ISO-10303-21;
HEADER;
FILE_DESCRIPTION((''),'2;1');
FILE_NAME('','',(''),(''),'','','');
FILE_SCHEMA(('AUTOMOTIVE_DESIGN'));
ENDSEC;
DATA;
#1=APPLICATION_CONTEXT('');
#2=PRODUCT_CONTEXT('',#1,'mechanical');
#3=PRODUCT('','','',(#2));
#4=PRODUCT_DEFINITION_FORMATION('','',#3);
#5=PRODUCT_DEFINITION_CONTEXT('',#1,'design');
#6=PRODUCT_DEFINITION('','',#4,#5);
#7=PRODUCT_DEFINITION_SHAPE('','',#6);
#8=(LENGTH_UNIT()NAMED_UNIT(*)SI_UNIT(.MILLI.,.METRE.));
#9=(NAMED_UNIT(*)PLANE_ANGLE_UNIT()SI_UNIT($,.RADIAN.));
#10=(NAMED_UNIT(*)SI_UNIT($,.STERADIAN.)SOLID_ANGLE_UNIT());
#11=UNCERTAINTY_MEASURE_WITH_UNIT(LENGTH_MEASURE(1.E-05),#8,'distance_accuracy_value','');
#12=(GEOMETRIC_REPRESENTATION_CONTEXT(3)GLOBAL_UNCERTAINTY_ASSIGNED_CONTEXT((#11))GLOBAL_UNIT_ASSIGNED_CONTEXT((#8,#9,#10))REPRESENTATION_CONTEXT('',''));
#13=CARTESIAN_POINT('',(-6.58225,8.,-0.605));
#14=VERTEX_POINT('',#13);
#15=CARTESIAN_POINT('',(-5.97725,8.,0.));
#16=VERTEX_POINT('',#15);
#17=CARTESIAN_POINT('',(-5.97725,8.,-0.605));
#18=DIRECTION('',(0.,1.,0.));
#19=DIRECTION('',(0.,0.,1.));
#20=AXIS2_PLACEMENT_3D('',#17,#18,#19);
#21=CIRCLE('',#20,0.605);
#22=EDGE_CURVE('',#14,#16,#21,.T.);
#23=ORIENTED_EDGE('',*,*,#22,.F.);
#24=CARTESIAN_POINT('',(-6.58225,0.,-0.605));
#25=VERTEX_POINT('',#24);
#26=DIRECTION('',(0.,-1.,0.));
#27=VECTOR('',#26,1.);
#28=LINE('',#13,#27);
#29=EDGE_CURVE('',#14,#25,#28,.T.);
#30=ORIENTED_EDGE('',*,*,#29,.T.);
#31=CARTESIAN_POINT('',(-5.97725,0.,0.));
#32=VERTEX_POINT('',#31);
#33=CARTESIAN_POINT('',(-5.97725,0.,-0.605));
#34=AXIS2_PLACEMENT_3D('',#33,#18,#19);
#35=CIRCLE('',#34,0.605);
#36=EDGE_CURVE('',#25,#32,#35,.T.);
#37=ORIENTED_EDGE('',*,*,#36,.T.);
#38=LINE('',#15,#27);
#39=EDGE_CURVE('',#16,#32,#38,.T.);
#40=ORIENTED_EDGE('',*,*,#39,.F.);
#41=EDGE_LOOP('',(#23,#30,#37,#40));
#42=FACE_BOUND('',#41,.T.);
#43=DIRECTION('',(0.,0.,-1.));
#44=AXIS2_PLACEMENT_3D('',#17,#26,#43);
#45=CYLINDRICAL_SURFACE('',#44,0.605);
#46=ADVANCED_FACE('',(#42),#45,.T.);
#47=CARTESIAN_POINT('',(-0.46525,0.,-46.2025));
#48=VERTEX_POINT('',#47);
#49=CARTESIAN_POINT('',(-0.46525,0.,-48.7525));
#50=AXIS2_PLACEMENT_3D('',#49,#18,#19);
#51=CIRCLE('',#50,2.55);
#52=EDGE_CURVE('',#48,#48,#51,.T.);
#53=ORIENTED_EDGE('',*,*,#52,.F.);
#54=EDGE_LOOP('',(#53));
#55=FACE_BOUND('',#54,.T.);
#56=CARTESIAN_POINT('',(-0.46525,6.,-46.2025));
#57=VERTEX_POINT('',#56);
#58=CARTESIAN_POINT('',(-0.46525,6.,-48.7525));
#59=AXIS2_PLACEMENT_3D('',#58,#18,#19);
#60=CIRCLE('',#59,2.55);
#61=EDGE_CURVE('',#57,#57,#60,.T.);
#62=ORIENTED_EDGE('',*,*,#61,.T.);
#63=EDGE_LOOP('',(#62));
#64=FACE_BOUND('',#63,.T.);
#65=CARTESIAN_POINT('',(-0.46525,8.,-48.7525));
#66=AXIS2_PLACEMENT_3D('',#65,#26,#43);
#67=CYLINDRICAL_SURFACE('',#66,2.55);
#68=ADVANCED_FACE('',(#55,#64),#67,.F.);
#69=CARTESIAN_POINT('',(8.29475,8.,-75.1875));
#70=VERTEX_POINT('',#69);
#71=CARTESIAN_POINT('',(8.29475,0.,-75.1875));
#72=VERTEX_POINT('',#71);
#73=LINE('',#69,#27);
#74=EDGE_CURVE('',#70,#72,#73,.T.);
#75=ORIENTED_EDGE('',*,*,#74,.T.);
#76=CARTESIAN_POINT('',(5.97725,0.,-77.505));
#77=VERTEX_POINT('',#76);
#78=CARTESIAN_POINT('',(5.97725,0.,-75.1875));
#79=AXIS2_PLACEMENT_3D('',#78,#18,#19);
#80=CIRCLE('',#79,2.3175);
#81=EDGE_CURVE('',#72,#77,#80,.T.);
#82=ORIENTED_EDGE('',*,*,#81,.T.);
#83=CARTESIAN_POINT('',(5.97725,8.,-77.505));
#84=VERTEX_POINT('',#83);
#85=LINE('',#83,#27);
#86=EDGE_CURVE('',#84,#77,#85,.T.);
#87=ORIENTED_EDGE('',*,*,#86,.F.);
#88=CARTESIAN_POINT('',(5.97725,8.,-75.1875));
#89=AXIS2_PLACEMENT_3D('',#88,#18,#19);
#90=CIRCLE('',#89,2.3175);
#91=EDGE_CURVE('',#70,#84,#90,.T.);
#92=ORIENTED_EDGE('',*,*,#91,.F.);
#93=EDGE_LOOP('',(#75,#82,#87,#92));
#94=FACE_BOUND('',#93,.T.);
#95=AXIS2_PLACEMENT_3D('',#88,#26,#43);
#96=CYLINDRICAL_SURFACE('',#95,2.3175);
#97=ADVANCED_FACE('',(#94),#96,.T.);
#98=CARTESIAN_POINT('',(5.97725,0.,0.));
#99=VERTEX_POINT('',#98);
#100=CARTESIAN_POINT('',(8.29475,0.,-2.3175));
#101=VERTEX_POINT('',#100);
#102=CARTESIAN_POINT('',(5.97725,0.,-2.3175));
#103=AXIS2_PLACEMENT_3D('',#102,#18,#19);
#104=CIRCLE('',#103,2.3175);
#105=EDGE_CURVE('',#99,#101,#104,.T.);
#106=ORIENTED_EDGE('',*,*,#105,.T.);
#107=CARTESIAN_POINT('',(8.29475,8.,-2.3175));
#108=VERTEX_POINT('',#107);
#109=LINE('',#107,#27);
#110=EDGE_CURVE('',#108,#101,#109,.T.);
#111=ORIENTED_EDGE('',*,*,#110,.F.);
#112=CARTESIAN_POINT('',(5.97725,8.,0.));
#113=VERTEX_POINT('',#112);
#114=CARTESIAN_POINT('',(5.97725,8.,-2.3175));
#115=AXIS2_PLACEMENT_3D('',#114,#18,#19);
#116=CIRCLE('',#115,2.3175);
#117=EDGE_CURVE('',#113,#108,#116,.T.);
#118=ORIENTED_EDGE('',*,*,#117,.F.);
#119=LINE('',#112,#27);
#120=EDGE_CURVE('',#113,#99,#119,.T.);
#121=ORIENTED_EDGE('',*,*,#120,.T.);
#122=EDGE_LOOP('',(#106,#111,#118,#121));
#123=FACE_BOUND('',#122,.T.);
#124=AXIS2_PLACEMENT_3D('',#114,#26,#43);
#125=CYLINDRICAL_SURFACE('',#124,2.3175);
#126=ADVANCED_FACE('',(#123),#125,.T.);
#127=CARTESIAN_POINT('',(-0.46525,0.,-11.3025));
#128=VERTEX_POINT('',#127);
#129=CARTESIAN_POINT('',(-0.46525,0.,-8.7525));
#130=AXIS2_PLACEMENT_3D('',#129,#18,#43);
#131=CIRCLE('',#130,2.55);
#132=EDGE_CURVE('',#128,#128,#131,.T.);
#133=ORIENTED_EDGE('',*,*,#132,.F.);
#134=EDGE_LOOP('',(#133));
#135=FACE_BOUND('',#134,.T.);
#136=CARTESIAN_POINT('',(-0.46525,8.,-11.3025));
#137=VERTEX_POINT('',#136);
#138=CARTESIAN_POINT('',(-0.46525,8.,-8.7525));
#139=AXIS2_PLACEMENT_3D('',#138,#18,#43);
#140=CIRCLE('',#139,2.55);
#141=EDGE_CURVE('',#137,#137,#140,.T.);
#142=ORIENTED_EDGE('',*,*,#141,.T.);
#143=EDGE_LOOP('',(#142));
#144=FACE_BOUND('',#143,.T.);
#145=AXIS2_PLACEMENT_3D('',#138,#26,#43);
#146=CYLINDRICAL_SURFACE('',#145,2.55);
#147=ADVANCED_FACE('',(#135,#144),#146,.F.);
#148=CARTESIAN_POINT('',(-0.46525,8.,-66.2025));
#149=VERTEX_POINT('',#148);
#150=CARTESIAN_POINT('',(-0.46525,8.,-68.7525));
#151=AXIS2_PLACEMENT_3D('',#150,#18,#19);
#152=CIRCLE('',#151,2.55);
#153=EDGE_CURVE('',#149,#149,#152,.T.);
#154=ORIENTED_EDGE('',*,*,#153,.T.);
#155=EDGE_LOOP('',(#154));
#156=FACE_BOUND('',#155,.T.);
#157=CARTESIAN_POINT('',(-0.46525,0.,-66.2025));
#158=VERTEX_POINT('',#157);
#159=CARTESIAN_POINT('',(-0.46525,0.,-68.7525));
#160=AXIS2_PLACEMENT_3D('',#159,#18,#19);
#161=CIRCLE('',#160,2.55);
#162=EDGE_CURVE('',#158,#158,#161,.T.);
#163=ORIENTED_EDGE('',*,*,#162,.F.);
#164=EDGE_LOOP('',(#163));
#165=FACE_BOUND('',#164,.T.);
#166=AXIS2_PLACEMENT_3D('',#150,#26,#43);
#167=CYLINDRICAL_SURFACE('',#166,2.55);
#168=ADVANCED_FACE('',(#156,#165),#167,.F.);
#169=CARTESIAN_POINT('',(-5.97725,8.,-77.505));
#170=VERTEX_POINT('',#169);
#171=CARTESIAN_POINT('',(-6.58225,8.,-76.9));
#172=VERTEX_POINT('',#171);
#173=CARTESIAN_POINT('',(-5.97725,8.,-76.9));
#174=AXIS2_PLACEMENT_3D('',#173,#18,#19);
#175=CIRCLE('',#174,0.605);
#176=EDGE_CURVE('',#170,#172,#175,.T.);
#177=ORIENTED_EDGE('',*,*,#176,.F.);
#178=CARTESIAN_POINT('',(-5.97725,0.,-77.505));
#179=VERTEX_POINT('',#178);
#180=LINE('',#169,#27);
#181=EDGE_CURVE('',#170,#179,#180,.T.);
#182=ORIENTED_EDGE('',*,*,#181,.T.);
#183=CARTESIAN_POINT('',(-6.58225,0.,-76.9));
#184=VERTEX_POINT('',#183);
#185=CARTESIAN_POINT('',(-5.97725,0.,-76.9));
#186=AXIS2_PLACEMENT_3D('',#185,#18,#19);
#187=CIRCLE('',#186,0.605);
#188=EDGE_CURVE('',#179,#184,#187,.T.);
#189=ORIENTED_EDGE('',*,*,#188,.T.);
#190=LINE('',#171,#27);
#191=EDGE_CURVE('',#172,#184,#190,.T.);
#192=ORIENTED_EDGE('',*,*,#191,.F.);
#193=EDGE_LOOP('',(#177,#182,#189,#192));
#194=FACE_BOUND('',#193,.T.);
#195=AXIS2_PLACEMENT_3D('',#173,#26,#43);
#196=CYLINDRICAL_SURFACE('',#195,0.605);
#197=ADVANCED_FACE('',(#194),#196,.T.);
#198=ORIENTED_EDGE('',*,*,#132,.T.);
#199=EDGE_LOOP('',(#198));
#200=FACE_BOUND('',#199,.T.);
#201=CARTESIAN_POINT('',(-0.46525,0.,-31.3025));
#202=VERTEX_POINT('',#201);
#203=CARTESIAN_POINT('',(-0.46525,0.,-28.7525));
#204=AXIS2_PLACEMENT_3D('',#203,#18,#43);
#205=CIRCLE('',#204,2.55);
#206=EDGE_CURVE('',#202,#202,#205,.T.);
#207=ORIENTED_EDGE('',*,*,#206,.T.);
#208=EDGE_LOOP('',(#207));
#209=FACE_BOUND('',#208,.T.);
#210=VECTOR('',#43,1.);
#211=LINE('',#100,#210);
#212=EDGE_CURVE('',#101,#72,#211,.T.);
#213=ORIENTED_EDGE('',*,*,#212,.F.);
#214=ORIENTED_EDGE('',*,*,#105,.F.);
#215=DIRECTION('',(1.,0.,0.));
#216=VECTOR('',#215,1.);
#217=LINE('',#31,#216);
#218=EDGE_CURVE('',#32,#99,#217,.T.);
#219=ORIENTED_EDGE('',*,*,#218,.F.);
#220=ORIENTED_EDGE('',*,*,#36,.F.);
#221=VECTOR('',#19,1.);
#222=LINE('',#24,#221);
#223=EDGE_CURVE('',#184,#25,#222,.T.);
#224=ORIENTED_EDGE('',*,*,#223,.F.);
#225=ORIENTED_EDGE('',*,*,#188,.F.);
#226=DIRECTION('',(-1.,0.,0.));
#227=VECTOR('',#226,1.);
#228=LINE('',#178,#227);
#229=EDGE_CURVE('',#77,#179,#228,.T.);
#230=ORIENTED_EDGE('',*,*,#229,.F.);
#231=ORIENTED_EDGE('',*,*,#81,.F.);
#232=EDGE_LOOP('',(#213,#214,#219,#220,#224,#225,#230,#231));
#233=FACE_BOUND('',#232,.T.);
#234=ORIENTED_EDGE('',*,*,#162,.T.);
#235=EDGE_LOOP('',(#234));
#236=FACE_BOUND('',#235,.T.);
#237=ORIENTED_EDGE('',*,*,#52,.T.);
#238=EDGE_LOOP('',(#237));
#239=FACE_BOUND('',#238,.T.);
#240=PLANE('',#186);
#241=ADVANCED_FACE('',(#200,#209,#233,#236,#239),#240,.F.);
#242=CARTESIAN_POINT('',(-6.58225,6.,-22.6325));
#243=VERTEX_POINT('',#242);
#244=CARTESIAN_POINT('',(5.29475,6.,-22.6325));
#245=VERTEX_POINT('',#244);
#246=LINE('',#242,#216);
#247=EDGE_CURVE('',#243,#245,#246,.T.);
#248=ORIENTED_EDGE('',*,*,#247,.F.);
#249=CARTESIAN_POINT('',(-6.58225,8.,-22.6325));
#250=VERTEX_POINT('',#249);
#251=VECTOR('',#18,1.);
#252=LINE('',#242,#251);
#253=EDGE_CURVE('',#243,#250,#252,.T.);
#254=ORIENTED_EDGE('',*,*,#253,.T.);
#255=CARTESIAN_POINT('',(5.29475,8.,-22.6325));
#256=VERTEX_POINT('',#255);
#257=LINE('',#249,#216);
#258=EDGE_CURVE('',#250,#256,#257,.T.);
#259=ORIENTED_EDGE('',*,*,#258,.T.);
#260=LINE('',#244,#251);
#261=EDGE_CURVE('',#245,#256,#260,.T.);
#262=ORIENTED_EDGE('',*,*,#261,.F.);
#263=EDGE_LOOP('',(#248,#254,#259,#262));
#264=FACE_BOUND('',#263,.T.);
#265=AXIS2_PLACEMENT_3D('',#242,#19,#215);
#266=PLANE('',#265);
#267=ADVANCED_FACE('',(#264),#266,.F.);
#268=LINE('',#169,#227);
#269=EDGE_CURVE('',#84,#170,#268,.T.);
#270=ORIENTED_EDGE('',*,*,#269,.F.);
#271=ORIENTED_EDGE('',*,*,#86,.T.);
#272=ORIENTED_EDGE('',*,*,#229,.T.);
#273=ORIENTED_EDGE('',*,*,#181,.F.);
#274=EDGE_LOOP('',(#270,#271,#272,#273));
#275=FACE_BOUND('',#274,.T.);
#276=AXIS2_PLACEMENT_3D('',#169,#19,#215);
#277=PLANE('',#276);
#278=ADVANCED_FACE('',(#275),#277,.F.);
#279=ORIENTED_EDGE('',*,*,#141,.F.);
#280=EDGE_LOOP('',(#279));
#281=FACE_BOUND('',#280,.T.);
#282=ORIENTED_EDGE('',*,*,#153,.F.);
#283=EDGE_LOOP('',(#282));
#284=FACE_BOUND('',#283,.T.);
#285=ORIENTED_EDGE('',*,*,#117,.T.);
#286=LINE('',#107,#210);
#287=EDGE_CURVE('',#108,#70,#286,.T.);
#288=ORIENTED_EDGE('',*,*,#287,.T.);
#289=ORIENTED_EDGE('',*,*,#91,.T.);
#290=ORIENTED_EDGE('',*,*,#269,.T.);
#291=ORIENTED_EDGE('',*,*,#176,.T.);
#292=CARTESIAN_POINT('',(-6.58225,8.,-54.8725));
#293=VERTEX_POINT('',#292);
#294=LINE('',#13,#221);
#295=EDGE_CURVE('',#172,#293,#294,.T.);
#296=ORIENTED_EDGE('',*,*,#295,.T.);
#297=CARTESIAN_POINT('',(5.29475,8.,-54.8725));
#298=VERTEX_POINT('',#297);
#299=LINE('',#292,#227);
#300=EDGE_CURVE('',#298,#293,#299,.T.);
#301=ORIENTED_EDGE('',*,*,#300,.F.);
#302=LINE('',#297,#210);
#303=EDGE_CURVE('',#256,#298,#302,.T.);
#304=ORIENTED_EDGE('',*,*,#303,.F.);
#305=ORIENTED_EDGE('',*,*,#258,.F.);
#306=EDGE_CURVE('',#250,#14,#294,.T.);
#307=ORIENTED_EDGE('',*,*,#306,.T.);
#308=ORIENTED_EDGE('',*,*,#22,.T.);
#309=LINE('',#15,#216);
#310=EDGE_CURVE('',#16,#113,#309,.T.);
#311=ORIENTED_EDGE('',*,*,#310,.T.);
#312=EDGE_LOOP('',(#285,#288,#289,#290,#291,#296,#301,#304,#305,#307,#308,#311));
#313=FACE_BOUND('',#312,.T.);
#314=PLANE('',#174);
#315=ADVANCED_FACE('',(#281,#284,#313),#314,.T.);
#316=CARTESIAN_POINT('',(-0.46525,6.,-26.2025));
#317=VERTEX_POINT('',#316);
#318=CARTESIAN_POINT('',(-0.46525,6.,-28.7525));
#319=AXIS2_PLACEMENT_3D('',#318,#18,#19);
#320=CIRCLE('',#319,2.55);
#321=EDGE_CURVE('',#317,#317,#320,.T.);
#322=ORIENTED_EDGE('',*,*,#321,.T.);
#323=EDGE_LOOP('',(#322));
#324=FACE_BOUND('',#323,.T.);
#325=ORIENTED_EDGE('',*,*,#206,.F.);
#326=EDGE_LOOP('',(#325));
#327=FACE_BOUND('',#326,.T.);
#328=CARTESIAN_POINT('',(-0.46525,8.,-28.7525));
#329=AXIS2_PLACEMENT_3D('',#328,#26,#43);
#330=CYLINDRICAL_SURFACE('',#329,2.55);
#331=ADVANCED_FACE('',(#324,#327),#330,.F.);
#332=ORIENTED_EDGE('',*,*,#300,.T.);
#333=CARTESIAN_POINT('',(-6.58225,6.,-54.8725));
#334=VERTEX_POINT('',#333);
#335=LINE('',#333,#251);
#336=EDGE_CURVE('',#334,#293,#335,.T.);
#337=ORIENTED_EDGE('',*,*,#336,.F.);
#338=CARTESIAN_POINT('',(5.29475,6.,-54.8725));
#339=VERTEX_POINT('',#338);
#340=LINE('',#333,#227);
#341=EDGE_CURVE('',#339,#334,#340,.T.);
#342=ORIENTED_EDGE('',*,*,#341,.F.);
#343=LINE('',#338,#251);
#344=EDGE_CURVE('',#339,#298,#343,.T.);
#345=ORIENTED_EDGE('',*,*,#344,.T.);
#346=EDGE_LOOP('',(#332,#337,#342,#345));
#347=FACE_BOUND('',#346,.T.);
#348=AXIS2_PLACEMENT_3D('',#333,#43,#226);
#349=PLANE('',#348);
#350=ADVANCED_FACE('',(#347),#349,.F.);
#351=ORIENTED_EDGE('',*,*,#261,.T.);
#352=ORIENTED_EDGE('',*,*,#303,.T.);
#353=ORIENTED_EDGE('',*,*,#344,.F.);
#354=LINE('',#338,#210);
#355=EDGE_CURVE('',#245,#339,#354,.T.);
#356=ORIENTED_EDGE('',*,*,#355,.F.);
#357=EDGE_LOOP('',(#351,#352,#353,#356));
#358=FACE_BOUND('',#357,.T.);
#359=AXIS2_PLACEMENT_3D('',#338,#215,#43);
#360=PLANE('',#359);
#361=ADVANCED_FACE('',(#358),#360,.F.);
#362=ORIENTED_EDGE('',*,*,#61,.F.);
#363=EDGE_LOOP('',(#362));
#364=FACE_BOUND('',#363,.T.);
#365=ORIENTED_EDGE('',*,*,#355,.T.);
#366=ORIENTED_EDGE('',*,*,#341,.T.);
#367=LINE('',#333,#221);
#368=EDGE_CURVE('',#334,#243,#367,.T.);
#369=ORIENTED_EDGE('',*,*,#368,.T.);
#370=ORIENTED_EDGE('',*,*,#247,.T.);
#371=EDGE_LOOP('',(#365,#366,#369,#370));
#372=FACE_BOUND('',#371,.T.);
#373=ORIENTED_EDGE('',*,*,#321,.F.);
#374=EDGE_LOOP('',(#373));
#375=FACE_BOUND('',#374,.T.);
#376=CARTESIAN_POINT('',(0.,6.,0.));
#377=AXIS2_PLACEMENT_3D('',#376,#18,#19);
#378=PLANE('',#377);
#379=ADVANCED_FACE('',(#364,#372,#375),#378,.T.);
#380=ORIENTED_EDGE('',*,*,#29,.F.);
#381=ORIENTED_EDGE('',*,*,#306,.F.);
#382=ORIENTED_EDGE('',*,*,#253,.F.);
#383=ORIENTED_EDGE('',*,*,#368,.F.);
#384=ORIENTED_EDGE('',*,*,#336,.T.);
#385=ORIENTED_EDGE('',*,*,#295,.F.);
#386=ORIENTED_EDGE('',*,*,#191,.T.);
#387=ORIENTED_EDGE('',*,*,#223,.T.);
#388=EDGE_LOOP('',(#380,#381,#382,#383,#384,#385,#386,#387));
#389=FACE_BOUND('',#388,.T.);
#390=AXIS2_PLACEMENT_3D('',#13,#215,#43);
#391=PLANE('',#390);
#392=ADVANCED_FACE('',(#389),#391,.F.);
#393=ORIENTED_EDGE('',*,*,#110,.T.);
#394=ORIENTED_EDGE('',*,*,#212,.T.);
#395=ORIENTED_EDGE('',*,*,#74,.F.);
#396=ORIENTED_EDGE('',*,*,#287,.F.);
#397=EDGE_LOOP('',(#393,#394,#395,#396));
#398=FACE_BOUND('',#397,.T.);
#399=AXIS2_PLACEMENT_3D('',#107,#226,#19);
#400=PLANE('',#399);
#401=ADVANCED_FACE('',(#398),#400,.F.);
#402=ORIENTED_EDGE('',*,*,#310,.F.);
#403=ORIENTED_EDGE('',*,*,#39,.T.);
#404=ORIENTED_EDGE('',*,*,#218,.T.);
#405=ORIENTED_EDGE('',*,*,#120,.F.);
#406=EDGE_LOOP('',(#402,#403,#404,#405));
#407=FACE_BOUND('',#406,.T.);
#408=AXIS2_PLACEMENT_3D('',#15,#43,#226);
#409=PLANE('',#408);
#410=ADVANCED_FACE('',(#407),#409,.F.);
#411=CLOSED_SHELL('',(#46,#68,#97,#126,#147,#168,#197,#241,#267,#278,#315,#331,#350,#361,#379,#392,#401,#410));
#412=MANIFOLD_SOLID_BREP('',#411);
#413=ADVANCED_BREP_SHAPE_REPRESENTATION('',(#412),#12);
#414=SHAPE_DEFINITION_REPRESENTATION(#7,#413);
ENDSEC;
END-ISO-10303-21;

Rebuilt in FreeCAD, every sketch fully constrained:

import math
import FreeCAD as App
import Part
import Sketcher

V = App.Vector
Q = App.Units.Quantity


def add_polygon(sketch, points):
    """Adds a closed chain of lines whose ends are joined by coincident constraints."""
    first, n = sketch.GeometryCount, len(points)
    for a, b in zip(points, points[1:] + points[:1]):
        sketch.addGeometry(Part.LineSegment(App.Vector(*a, 0), App.Vector(*b, 0)), False)
    for i in range(n):
        sketch.addConstraint(Sketcher.Constraint("Coincident", first + i, 2, first + (i + 1) % n, 1))

doc = App.newDocument("Part")
body = doc.addObject("PartDesign::Body", "Body")

sketch1 = body.newObject("Sketcher::SketchObject", "Sketch")
sketch1.AttachmentSupport = (doc.getObject("XZ_Plane"), [""])
sketch1.MapMode = "FlatFace"
sketch1.addGeometry([
    Part.LineSegment(V(-6, 0, 0), V(6, 0, 0)),
    Part.ArcOfCircle(Part.Circle(V(6, -2.3, 0), V(0, 0, 1), 2.3), math.radians(0), math.radians(90)),
    Part.LineSegment(V(8.3, -2.3, 0), V(8.3, -75.2, 0)),
    Part.ArcOfCircle(Part.Circle(V(6, -75.2, 0), V(0, 0, 1), 2.3), math.radians(-90), math.radians(0)),
    Part.LineSegment(V(6, -77.5, 0), V(-6, -77.5, 0)),
    Part.ArcOfCircle(Part.Circle(V(-6, -76.9, 0), V(0, 0, 1), 0.6), math.radians(180), math.radians(270)),
    Part.LineSegment(V(-6.6, -76.9, 0), V(-6.6, -0.6, 0)),
    Part.ArcOfCircle(Part.Circle(V(-6, -0.6, 0), V(0, 0, 1), 0.6), math.radians(90), math.radians(180)),
    Part.Circle(V(-0.5, -8.8, 0), V(0, 0, 1), 2.5),
    Part.Circle(V(-0.5, -28.8, 0), V(0, 0, 1), 2.5),
    Part.Circle(V(-0.5, -48.8, 0), V(0, 0, 1), 2.5),
    Part.Circle(V(-0.5, -68.8, 0), V(0, 0, 1), 2.5),
], False)
sketch1.addConstraint([
    Sketcher.Constraint("Tangent", 0, 2, 1, 2),
    Sketcher.Constraint("Tangent", 1, 1, 2, 1),
    Sketcher.Constraint("Tangent", 2, 2, 3, 2),
    Sketcher.Constraint("Tangent", 3, 1, 4, 1),
    Sketcher.Constraint("Tangent", 4, 2, 5, 2),
    Sketcher.Constraint("Tangent", 5, 1, 6, 1),
    Sketcher.Constraint("Tangent", 6, 2, 7, 2),
    Sketcher.Constraint("Tangent", 7, 1, 0, 1),
    Sketcher.Constraint("Horizontal", 0),
    Sketcher.Constraint("Vertical", 2),
    Sketcher.Constraint("Horizontal", 4),
    Sketcher.Constraint("Vertical", 6),
    Sketcher.Constraint("Equal", 1, 3),
    Sketcher.Constraint("Equal", 5, 7),
    Sketcher.Constraint("Equal", 8, 9),
    Sketcher.Constraint("Equal", 9, 10),
    Sketcher.Constraint("Equal", 10, 11),
    Sketcher.Constraint("Symmetric", 0, 2, 7, 1, -1, 1),
    Sketcher.Constraint("Vertical", 8, 3, 9, 3),
    Sketcher.Constraint("Vertical", 9, 3, 10, 3),
    Sketcher.Constraint("Vertical", 10, 3, 11, 3),
    Sketcher.Constraint("Diameter", 8, Q("5.1 mm")),
    Sketcher.Constraint("Radius", 5, Q("0.605 mm")),
    Sketcher.Constraint("DistanceY", 9, 3, 8, 3, Q("20 mm")),
    Sketcher.Constraint("DistanceY", 10, 3, 9, 3, Q("20 mm")),
    Sketcher.Constraint("DistanceY", 11, 3, 10, 3, Q("20 mm")),
    Sketcher.Constraint("DistanceY", 2, 2, 2, 1, Q("72.87 mm")),
    Sketcher.Constraint("DistanceY", 5, 3, -1, 1, Q("76.9 mm")),
    Sketcher.Constraint("DistanceX", 8, 3, 1, 1, Q("8.76 mm")),
    Sketcher.Constraint("DistanceX", 0, 1, 0, 2, Q("11.9545 mm")),
    Sketcher.Constraint("DistanceY", 8, 3, 1, 3, Q("6.435 mm")),
])
pad1 = body.newObject("PartDesign::Pad", "Pad")
pad1.Profile = sketch1
pad1.Length = 8
pad1.Reversed = True

sketch2 = body.newObject("Sketcher::SketchObject", "Sketch001")
sketch2.AttachmentSupport = (doc.getObject("XZ_Plane"), [""])
sketch2.MapMode = "FlatFace"
sketch2.AttachmentOffset = App.Placement(V(0, 0, -8), App.Rotation())
add_polygon(sketch2, [(-7, -55), (-7, -23), (5, -23), (5, -55)])
sketch2.addConstraint([
    Sketcher.Constraint("Vertical", 0),
    Sketcher.Constraint("Horizontal", 1),
    Sketcher.Constraint("Vertical", 2),
    Sketcher.Constraint("Horizontal", 3),
    Sketcher.Constraint("DistanceY", 0, 1, 0, 2, Q("32.24 mm")),
    Sketcher.Constraint("DistanceX", 1, 1, 1, 2, Q("11.877 mm")),
    Sketcher.Constraint("DistanceY", 0, 2, -1, 1, Q("22.6325 mm")),
    Sketcher.Constraint("DistanceX", 0, 2, -1, 1, Q("6.58225 mm")),
])
pocket1 = body.newObject("PartDesign::Pocket", "Pocket")
pocket1.Profile = sketch2
pocket1.Length = 2
pocket1.Reversed = True

doc.recompute()
